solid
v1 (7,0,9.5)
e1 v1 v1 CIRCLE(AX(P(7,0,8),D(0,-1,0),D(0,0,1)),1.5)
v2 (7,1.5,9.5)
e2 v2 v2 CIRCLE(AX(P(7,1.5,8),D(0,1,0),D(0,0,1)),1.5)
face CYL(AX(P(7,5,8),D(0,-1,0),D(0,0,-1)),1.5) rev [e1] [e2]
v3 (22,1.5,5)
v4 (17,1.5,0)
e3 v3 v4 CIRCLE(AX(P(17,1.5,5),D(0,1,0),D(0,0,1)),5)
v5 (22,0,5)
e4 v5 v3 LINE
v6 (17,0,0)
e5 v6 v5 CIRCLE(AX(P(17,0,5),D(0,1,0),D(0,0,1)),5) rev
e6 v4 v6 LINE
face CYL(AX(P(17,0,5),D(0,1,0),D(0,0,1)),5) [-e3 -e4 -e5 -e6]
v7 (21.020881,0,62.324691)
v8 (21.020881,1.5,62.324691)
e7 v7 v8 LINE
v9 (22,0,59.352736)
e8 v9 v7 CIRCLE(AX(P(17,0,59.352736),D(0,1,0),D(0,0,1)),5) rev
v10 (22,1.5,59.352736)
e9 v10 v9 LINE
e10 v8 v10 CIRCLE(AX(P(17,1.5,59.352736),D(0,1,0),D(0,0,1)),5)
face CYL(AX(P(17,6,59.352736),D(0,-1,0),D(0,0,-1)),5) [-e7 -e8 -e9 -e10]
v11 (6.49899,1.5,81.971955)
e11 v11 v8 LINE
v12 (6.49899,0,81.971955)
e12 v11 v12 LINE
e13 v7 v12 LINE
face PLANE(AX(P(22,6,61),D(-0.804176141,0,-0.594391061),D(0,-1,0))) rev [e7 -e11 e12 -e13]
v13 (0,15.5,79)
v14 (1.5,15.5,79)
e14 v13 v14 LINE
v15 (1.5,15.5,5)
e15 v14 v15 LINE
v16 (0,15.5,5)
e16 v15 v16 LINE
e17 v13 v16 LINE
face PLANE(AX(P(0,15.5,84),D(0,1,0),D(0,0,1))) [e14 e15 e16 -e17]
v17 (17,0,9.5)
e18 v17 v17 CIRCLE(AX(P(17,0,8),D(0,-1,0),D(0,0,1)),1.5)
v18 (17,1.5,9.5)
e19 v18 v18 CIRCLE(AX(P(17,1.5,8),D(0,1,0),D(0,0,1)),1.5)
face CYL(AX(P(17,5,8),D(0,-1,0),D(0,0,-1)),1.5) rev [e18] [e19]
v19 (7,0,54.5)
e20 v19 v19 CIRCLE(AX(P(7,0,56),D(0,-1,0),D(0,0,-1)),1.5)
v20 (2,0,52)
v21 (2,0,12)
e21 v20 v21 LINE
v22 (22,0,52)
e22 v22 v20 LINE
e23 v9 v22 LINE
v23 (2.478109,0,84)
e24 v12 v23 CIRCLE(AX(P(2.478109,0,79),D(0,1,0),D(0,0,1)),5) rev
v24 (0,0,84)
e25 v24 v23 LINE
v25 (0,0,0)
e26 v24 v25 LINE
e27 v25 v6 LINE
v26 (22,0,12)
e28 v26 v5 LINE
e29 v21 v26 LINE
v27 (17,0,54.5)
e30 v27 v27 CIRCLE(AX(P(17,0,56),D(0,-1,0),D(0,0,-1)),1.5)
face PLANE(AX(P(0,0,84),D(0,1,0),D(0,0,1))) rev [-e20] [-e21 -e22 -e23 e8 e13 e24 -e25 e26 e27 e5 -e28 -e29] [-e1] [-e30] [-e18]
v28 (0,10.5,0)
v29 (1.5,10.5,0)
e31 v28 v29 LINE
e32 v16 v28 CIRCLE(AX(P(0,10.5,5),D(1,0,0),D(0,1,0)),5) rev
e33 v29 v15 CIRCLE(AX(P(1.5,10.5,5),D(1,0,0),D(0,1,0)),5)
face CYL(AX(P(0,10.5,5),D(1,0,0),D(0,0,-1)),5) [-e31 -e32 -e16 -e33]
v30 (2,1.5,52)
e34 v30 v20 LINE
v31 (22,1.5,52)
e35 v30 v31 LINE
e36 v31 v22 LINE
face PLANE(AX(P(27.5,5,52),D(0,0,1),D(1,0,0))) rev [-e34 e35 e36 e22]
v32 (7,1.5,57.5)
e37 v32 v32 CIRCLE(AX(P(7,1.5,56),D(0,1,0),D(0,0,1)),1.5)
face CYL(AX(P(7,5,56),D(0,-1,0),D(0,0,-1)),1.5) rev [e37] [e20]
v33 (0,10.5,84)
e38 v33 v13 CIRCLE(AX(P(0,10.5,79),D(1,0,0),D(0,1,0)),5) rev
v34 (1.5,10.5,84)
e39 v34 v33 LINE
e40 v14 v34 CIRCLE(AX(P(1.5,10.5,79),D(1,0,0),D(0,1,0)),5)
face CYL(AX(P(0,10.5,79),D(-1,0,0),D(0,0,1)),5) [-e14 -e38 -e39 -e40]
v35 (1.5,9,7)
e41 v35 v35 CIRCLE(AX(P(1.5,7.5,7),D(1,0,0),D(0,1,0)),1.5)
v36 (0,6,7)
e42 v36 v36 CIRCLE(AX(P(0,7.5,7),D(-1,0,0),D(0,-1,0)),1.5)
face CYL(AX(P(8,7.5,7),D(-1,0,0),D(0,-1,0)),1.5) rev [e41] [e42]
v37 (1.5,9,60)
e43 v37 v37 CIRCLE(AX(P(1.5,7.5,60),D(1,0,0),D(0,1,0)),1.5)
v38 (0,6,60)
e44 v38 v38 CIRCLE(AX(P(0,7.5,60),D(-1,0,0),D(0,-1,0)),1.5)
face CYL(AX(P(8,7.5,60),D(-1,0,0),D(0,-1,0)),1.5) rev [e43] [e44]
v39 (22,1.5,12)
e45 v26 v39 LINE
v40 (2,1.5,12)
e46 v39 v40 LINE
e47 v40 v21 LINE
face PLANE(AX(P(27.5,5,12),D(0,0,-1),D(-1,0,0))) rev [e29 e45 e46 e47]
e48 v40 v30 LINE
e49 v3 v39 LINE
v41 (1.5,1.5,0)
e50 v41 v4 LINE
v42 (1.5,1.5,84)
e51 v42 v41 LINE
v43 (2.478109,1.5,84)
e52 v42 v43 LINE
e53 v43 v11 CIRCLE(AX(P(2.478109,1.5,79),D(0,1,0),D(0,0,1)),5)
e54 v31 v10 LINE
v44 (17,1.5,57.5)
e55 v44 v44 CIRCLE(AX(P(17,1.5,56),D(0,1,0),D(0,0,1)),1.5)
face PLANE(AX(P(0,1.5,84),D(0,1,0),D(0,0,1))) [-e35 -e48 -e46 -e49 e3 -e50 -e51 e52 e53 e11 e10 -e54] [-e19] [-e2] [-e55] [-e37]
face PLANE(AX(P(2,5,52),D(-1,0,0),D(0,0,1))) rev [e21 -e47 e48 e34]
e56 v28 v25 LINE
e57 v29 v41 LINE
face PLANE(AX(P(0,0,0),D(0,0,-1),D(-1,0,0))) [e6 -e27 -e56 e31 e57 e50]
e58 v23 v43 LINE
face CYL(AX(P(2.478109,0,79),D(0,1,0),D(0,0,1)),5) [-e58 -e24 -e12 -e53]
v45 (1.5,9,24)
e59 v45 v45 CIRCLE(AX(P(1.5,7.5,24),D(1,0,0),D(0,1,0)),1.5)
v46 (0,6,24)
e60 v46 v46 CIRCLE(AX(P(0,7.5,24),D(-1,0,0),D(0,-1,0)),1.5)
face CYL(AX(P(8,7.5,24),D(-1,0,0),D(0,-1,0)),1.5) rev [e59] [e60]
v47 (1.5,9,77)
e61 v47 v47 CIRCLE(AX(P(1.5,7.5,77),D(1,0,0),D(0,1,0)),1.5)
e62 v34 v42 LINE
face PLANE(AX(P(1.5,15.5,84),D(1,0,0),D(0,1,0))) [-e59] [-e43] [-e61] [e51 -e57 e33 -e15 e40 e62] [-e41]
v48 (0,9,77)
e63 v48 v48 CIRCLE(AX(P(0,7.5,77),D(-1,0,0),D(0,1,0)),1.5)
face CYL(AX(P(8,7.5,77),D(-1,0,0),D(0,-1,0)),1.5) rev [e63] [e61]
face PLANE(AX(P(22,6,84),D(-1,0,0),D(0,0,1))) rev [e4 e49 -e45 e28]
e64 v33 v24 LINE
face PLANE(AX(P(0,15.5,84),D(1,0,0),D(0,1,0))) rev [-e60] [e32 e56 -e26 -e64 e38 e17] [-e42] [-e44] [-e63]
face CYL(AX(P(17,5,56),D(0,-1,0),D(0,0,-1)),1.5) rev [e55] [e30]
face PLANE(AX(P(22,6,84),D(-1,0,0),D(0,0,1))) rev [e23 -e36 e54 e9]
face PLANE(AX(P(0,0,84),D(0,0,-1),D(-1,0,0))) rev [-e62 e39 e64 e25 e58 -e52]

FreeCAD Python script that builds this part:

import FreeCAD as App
import Part
import Sketcher
Q = App.Units.Quantity


def edges_at(feature, points):
    """Names of the edges that pass closest to the given points."""
    edges = feature.Shape.Edges
    near = lambda p: min(range(len(edges)), key=lambda i: edges[i].distToShape(Part.Vertex(*p))[0])
    return sorted({f"Edge{near(p) + 1}" for p in points})

doc = App.newDocument("Part")
body = doc.addObject("PartDesign::Body", "Body")

# Sketch on XY plane
sketch1 = body.newObject("Sketcher::SketchObject", "Sketch")
sketch1.AttachmentSupport = (doc.getObject("XY_Plane"), [""])
sketch1.MapMode = "FlatFace"
sketch1.addGeometry(Part.LineSegment(App.Vector(0, 15.5, 0), App.Vector(0, 0, 0)), False)
sketch1.addGeometry(Part.LineSegment(App.Vector(0, 0, 0), App.Vector(27.5, 0, 0)), False)
sketch1.addGeometry(Part.LineSegment(App.Vector(27.5, 0, 0), App.Vector(27.5, 1.5, 0)), False)
sketch1.addGeometry(Part.LineSegment(App.Vector(27.5, 1.5, 0), App.Vector(1.5, 1.5, 0)), False)
sketch1.addGeometry(Part.LineSegment(App.Vector(1.5, 1.5, 0), App.Vector(1.5, 15.5, 0)), False)
sketch1.addGeometry(Part.LineSegment(App.Vector(1.5, 15.5, 0), App.Vector(0, 15.5, 0)), False)
sketch1.addConstraint(Sketcher.Constraint("Coincident", 0, 2, 1, 1))
sketch1.addConstraint(Sketcher.Constraint("Coincident", 1, 2, 2, 1))
sketch1.addConstraint(Sketcher.Constraint("Coincident", 2, 2, 3, 1))
sketch1.addConstraint(Sketcher.Constraint("Coincident", 3, 2, 4, 1))
sketch1.addConstraint(Sketcher.Constraint("Coincident", 4, 2, 5, 1))
sketch1.addConstraint(Sketcher.Constraint("Coincident", 5, 2, 0, 1))
sketch1.addConstraint(Sketcher.Constraint("Vertical", 0))
sketch1.addConstraint(Sketcher.Constraint("Horizontal", 1))
sketch1.addConstraint(Sketcher.Constraint("Vertical", 2))
sketch1.addConstraint(Sketcher.Constraint("Horizontal", 3))
sketch1.addConstraint(Sketcher.Constraint("Vertical", 4))
sketch1.addConstraint(Sketcher.Constraint("Horizontal", 5))
sketch1.addConstraint(Sketcher.Constraint("Coincident", 0, 2, -1, 1))
sketch1.addConstraint(Sketcher.Constraint("Equal", 5, 2))
sketch1.addConstraint(Sketcher.Constraint("DistanceX", 3, 2, 3, 1, Q("26 mm")))
sketch1.addConstraint(Sketcher.Constraint("DistanceY", 4, 1, 4, 2, Q("14 mm")))
sketch1.addConstraint(Sketcher.Constraint("DistanceX", 1, 1, 1, 2, Q("27.5 mm")))
pad1 = body.newObject("PartDesign::Pad", "Pad")
pad1.Profile = sketch1
pad1.Length = 84

# Sketch on YZ plane
sketch2 = body.newObject("Sketcher::SketchObject", "Sketch001")
sketch2.AttachmentSupport = (doc.getObject("YZ_Plane"), [""])
sketch2.MapMode = "FlatFace"
sketch2.addGeometry(Part.Circle(App.Vector(7.5, 7, 0), App.Vector(0, 0, 1), 1.5), False)
sketch2.addGeometry(Part.Circle(App.Vector(7.5, 24, 0), App.Vector(0, 0, 1), 1.5), False)
sketch2.addGeometry(Part.Circle(App.Vector(7.5, 60, 0), App.Vector(0, 0, 1), 1.5), False)
sketch2.addGeometry(Part.Circle(App.Vector(7.5, 77, 0), App.Vector(0, 0, 1), 1.5), False)
sketch2.addConstraint(Sketcher.Constraint("Equal", 0, 1))
sketch2.addConstraint(Sketcher.Constraint("Equal", 1, 2))
sketch2.addConstraint(Sketcher.Constraint("Equal", 2, 3))
sketch2.addConstraint(Sketcher.Constraint("Vertical", 0, 3, 1, 3))
sketch2.addConstraint(Sketcher.Constraint("Vertical", 1, 3, 2, 3))
sketch2.addConstraint(Sketcher.Constraint("Vertical", 2, 3, 3, 3))
sketch2.addConstraint(Sketcher.Constraint("Diameter", 0, Q("3 mm")))
sketch2.addConstraint(Sketcher.Constraint("DistanceY", -1, 1, 0, 3, Q("7 mm")))
sketch2.addConstraint(Sketcher.Constraint("DistanceY", -1, 1, 1, 3, Q("24 mm")))
sketch2.addConstraint(Sketcher.Constraint("DistanceY", -1, 1, 2, 3, Q("60 mm")))
sketch2.addConstraint(Sketcher.Constraint("DistanceY", -1, 1, 3, 3, Q("77 mm")))
sketch2.addConstraint(Sketcher.Constraint("DistanceX", -1, 1, 0, 3, Q("7.5 mm")))
pocket1 = body.newObject("PartDesign::Pocket", "Pocket")
pocket1.Profile = sketch2
pocket1.Length = 8
pocket1.Reversed = True

# Sketch on XZ plane
sketch3 = body.newObject("Sketcher::SketchObject", "Sketch002")
sketch3.AttachmentSupport = (doc.getObject("XZ_Plane"), [""])
sketch3.MapMode = "FlatFace"
sketch3.addGeometry(Part.Circle(App.Vector(7, 56, 0), App.Vector(0, 0, 1), 1.5), False)
sketch3.addGeometry(Part.Circle(App.Vector(17, 56, 0), App.Vector(0, 0, 1), 1.5), False)
sketch3.addGeometry(Part.Circle(App.Vector(17, 8, 0), App.Vector(0, 0, 1), 1.5), False)
sketch3.addGeometry(Part.Circle(App.Vector(7, 8, 0), App.Vector(0, 0, 1), 1.5), False)
sketch3.addGeometry(Part.LineSegment(App.Vector(2, 52, 0), App.Vector(2, 12, 0)), False)
sketch3.addGeometry(Part.LineSegment(App.Vector(2, 12, 0), App.Vector(27.5, 12, 0)), False)
sketch3.addGeometry(Part.LineSegment(App.Vector(27.5, 12, 0), App.Vector(27.5, 52, 0)), False)
sketch3.addGeometry(Part.LineSegment(App.Vector(27.5, 52, 0), App.Vector(2, 52, 0)), False)
sketch3.addConstraint(Sketcher.Constraint("Coincident", 4, 2, 5, 1))
sketch3.addConstraint(Sketcher.Constraint("Coincident", 5, 2, 6, 1))
sketch3.addConstraint(Sketcher.Constraint("Coincident", 6, 2, 7, 1))
sketch3.addConstraint(Sketcher.Constraint("Coincident", 7, 2, 4, 1))
sketch3.addConstraint(Sketcher.Constraint("Vertical", 4))
sketch3.addConstraint(Sketcher.Constraint("Horizontal", 5))
sketch3.addConstraint(Sketcher.Constraint("Vertical", 6))
sketch3.addConstraint(Sketcher.Constraint("Horizontal", 7))
sketch3.addConstraint(Sketcher.Constraint("Equal", 0, 1))
sketch3.addConstraint(Sketcher.Constraint("Equal", 1, 2))
sketch3.addConstraint(Sketcher.Constraint("Equal", 2, 3))
sketch3.addConstraint(Sketcher.Constraint("Horizontal", 0, 3, 1, 3))
sketch3.addConstraint(Sketcher.Constraint("Horizontal", 2, 3, 3, 3))
sketch3.addConstraint(Sketcher.Constraint("Vertical", 1, 3, 2, 3))
sketch3.addConstraint(Sketcher.Constraint("Vertical", 0, 3, 3, 3))
sketch3.addConstraint(Sketcher.Constraint("Diameter", 0, Q("3 mm")))
sketch3.addConstraint(Sketcher.Constraint("DistanceY", 4, 2, 4, 1, Q("40 mm")))
sketch3.addConstraint(Sketcher.Constraint("DistanceX", 5, 1, 5, 2, Q("25.5 mm")))
sketch3.addConstraint(Sketcher.Constraint("DistanceX", -1, 1, 0, 3, Q("7 mm")))
sketch3.addConstraint(Sketcher.Constraint("DistanceY", -1, 1, 0, 3, Q("56 mm")))
sketch3.addConstraint(Sketcher.Constraint("DistanceX", -1, 1, 1, 3, Q("17 mm")))
sketch3.addConstraint(Sketcher.Constraint("DistanceY", -1, 1, 2, 3, Q("8 mm")))
sketch3.addConstraint(Sketcher.Constraint("DistanceX", -1, 1, 4, 2, Q("2 mm")))
sketch3.addConstraint(Sketcher.Constraint("DistanceY", -1, 1, 4, 2, Q("12 mm")))
pocket2 = body.newObject("PartDesign::Pocket", "Pocket001")
pocket2.Profile = sketch3
pocket2.Length = 5

# Sketch on XZ plane
sketch4 = body.newObject("Sketcher::SketchObject", "Sketch003")
sketch4.AttachmentSupport = (doc.getObject("XZ_Plane"), [""])
sketch4.MapMode = "FlatFace"
sketch4.addGeometry(Part.LineSegment(App.Vector(22, 84, 0), App.Vector(22, 0, 0)), False)
sketch4.addGeometry(Part.LineSegment(App.Vector(22, 0, 0), App.Vector(28, 0, 0)), False)
sketch4.addGeometry(Part.LineSegment(App.Vector(28, 0, 0), App.Vector(28, 84, 0)), False)
sketch4.addGeometry(Part.LineSegment(App.Vector(28, 84, 0), App.Vector(22, 84, 0)), False)
sketch4.addConstraint(Sketcher.Constraint("Coincident", 0, 2, 1, 1))
sketch4.addConstraint(Sketcher.Constraint("Coincident", 1, 2, 2, 1))
sketch4.addConstraint(Sketcher.Constraint("Coincident", 2, 2, 3, 1))
sketch4.addConstraint(Sketcher.Constraint("Coincident", 3, 2, 0, 1))
sketch4.addConstraint(Sketcher.Constraint("Vertical", 0))
sketch4.addConstraint(Sketcher.Constraint("Horizontal", 1))
sketch4.addConstraint(Sketcher.Constraint("Vertical", 2))
sketch4.addConstraint(Sketcher.Constraint("Horizontal", 3))
sketch4.addConstraint(Sketcher.Constraint("PointOnObject", 0, 2, -1))
sketch4.addConstraint(Sketcher.Constraint("DistanceY", 0, 2, 0, 1, Q("84 mm")))
sketch4.addConstraint(Sketcher.Constraint("DistanceX", 1, 1, 1, 2, Q("5.5 mm")))
sketch4.addConstraint(Sketcher.Constraint("DistanceX", -1, 1, 0, 2, Q("22 mm")))
pocket3 = body.newObject("PartDesign::Pocket", "Pocket002")
pocket3.Profile = sketch4
pocket3.Length = 6
doc.recompute()

chamfer = body.newObject("PartDesign::Chamfer", "Chamfer")
chamfer.Base = (pocket3, edges_at(pocket3, [(22, 0.75, 84)]))
chamfer.ChamferType = "Two distances"
chamfer.Size = 17
chamfer.Size2 = 23
doc.recompute()

fillet = body.newObject("PartDesign::Fillet", "Fillet")
fillet.Base = (chamfer, edges_at(chamfer, [
    (22, 0.75, 61),
    (5, 0.75, 84),
    (0.75, 15.5, 84),
    (0.75, 15.5, 0),
    (22, 0.75, 0),
]))
fillet.Radius = 5

doc.recompute()
